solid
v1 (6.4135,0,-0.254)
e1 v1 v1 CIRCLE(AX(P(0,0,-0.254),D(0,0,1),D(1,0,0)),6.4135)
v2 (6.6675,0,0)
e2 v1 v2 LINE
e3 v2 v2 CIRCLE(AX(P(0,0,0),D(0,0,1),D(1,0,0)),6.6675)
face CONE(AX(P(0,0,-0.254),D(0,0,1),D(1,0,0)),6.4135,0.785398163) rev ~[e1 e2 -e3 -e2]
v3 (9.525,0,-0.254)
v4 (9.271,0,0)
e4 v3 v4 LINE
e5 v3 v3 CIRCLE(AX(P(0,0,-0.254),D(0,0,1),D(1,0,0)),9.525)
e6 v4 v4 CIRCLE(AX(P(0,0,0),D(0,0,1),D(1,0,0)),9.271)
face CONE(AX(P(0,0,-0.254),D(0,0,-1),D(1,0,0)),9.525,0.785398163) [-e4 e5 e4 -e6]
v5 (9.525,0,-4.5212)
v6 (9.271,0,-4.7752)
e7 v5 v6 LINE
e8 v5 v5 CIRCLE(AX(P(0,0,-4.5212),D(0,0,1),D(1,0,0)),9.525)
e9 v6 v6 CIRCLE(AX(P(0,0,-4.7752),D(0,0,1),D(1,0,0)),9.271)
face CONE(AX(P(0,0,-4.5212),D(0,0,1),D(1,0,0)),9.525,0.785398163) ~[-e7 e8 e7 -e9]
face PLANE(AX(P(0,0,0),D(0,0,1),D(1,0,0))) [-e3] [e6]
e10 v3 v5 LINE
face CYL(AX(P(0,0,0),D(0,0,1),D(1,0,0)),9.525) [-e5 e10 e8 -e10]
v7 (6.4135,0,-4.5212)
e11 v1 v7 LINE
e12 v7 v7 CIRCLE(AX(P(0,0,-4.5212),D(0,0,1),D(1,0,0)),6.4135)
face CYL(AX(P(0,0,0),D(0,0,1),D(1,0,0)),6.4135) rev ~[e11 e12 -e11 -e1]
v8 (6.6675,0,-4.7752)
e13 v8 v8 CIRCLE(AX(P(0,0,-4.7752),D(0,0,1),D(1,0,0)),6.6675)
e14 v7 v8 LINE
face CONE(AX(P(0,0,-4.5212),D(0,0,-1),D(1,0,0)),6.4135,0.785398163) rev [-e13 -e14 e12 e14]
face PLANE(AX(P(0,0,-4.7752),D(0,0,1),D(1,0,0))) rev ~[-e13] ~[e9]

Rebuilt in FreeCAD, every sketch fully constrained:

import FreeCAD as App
import Part
import Sketcher

V = App.Vector
Q = App.Units.Quantity


def edges_at(feature, points):
    """Names of the edges that pass closest to the given points."""
    edges = feature.Shape.Edges
    near = lambda p: min(range(len(edges)), key=lambda i: edges[i].distToShape(Part.Vertex(*p))[0])
    return sorted({f"Edge{near(p) + 1}" for p in points})

doc = App.newDocument("Part")
params = doc.addObject("Spreadsheet::Sheet", "Params")
for row, (alias, value) in enumerate([
    ("sketch1_diameter", "0.75 in"),
    ("sketch1_diameter2", "0.505 in"),
    ("pad1_length", "0.188 in"),
    ("chamfer_size", "0.01 in"),
], start=1):
    params.set(f"A{row}", alias)
    params.set(f"B{row}", "=" + value)
    params.setAlias(f"B{row}", alias)

body = doc.addObject("PartDesign::Body", "Body")

sketch1 = doc.addObject("Sketcher::SketchObject", "Sketch")
body.addObject(sketch1)
sketch1.AttachmentSupport = (doc.XY_Plane, [""])
sketch1.MapMode = "FlatFace"
sketch1.addGeometry([
    Part.Circle(V(0, 0, 0), V(0, 0, 1), 10),
    Part.Circle(V(0, 0, 0), V(0, 0, 1), 6),
], False)
sketch1.addConstraint([
    Sketcher.Constraint("Coincident", 0, 3, -1, 1),
    Sketcher.Constraint("Coincident", 1, 3, -1, 1),
    Sketcher.Constraint("Diameter", 0, Q("0.75 in")),
    Sketcher.Constraint("Diameter", 1, Q("0.505 in")),
])
sketch1.setExpression("Constraints[2]", "Params.sketch1_diameter")
sketch1.setExpression("Constraints[3]", "Params.sketch1_diameter2")
pad1 = doc.addObject("PartDesign::Pad", "Pad")
body.addObject(pad1)
pad1.Profile = sketch1
pad1.setExpression("Length", "Params.pad1_length")
pad1.Reversed = True
doc.recompute()

chamfer = doc.addObject("PartDesign::Chamfer", "Chamfer")
body.addObject(chamfer)
chamfer.Base = (pad1, edges_at(pad1, [
    (-9.525, 0, 0),
    (-6.413, 0, 0),
    (-9.525, 0, -4.775),
    (-6.413, 0, -4.775),
]))
chamfer.setExpression("Size", "Params.chamfer_size")

doc.recompute()
